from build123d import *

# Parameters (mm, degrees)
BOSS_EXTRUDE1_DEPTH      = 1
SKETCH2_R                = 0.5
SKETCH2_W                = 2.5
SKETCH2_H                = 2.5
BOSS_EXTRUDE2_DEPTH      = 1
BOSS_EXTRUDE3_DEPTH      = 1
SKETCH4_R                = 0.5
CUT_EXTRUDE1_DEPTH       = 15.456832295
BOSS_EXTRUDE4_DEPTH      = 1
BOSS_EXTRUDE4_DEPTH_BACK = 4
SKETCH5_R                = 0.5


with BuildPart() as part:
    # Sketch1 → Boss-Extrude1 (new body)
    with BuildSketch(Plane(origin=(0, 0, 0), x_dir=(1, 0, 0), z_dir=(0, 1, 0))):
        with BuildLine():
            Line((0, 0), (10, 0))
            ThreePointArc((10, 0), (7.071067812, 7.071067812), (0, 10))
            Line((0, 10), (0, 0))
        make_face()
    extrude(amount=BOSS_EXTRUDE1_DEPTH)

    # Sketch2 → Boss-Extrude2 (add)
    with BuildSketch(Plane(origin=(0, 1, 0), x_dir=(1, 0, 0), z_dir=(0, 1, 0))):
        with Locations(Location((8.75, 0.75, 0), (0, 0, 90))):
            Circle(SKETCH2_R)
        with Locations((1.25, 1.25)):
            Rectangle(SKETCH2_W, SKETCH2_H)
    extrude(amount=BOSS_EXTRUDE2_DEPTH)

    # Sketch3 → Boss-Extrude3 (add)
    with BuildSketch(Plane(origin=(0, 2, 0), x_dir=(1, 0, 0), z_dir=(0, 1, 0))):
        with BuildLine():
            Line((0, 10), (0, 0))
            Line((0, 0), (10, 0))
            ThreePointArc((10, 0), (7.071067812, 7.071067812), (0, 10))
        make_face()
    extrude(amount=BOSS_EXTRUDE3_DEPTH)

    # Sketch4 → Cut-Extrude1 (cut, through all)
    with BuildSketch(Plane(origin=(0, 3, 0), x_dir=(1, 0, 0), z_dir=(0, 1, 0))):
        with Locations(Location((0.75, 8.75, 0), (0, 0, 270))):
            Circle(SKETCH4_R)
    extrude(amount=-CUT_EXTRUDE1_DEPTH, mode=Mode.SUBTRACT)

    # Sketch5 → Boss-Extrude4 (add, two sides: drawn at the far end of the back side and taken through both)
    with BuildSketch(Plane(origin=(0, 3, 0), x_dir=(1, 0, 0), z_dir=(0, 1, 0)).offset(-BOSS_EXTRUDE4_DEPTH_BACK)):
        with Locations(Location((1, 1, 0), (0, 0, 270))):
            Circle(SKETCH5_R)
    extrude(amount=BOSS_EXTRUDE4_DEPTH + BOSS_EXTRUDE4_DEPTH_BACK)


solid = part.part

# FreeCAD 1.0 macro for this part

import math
import FreeCAD as App
import Part
import Sketcher


def add_polygon(sketch, points):
    """Adds a closed chain of lines whose ends are joined by coincident constraints."""
    first, n = sketch.GeometryCount, len(points)
    for a, b in zip(points, points[1:] + points[:1]):
        sketch.addGeometry(Part.LineSegment(App.Vector(*a, 0), App.Vector(*b, 0)), False)
    for i in range(n):
        sketch.addConstraint(Sketcher.Constraint("Coincident", first + i, 2, first + (i + 1) % n, 1))

doc = App.newDocument("Part")
body = doc.addObject("PartDesign::Body", "Body")

sketch1 = body.newObject("Sketcher::SketchObject", "Sketch")
sketch1.AttachmentSupport = (doc.getObject("XZ_Plane"), [""])
sketch1.MapMode = "FlatFace"
sketch1.addGeometry([
    Part.LineSegment(App.Vector(0, 0, 0), App.Vector(10, 0, 0)),
    Part.ArcOfCircle(Part.Circle(App.Vector(0, 0, 0), App.Vector(0, 0, 1), 10), math.radians(-90), math.radians(0)),
    Part.LineSegment(App.Vector(0, -10, 0), App.Vector(0, 0, 0)),
], False)
sketch1.addConstraint([
    Sketcher.Constraint("Coincident", 0, 2, 1, 2),
    Sketcher.Constraint("Coincident", 1, 1, 2, 1),
    Sketcher.Constraint("Coincident", 2, 2, 0, 1),
    Sketcher.Constraint("Horizontal", 0),
    Sketcher.Constraint("Vertical", 2),
    Sketcher.Constraint("Coincident", 1, 3, -1, 1),
    Sketcher.Constraint("Coincident", 2, 2, -1, 1),
    Sketcher.Constraint("Radius", 1, 10.0),
])
pad1 = body.newObject("PartDesign::Pad", "Pad")
pad1.Profile = sketch1
pad1.Length = 1
pad1.Reversed = True

sketch2 = body.newObject("Sketcher::SketchObject", "Sketch001")
sketch2.AttachmentSupport = (doc.getObject("XZ_Plane"), [""])
sketch2.MapMode = "FlatFace"
sketch2.AttachmentOffset = App.Placement(App.Vector(0, 0, -1), App.Rotation())
sketch2.addGeometry(Part.Circle(App.Vector(8.8, -0.8, 0), App.Vector(0, 0, 1), 0.5), False)
add_polygon(sketch2, [(0, -2.5), (0, 0), (2.5, 0), (2.5, -2.5)])
sketch2.addConstraint([
    Sketcher.Constraint("Vertical", 1),
    Sketcher.Constraint("Horizontal", 2),
    Sketcher.Constraint("Vertical", 3),
    Sketcher.Constraint("Horizontal", 4),
    Sketcher.Constraint("Coincident", 1, 2, -1, 1),
    Sketcher.Constraint("Equal", 4, 1),
    Sketcher.Constraint("Diameter", 0, 1.0),
    Sketcher.Constraint("DistanceX", 2, 1, 2, 2, 2.5),
    Sketcher.Constraint("DistanceX", -1, 1, 0, 3, 8.75),
    Sketcher.Constraint("DistanceY", 0, 3, -1, 1, 0.75),
])
pad2 = body.newObject("PartDesign::Pad", "Pad001")
pad2.Profile = sketch2
pad2.Length = 1
pad2.Reversed = True

sketch3 = body.newObject("Sketcher::SketchObject", "Sketch002")
sketch3.AttachmentSupport = (doc.getObject("XZ_Plane"), [""])
sketch3.MapMode = "FlatFace"
sketch3.AttachmentOffset = App.Placement(App.Vector(0, 0, -2), App.Rotation())
sketch3.addGeometry([
    Part.LineSegment(App.Vector(0, -10, 0), App.Vector(0, 0, 0)),
    Part.LineSegment(App.Vector(0, 0, 0), App.Vector(10, 0, 0)),
    Part.ArcOfCircle(Part.Circle(App.Vector(0, 0, 0), App.Vector(0, 0, 1), 10), math.radians(-90), math.radians(0)),
], False)
sketch3.addConstraint([
    Sketcher.Constraint("Coincident", 0, 2, 1, 1),
    Sketcher.Constraint("Coincident", 1, 2, 2, 2),
    Sketcher.Constraint("Coincident", 2, 1, 0, 1),
    Sketcher.Constraint("Vertical", 0),
    Sketcher.Constraint("Horizontal", 1),
    Sketcher.Constraint("Coincident", 2, 3, -1, 1),
    Sketcher.Constraint("Coincident", 0, 2, -1, 1),
    Sketcher.Constraint("Radius", 2, 10.0),
])
pad3 = body.newObject("PartDesign::Pad", "Pad002")
pad3.Profile = sketch3
pad3.Length = 1
pad3.Reversed = True

sketch4 = body.newObject("Sketcher::SketchObject", "Sketch003")
sketch4.AttachmentSupport = (doc.getObject("XZ_Plane"), [""])
sketch4.MapMode = "FlatFace"
sketch4.AttachmentOffset = App.Placement(App.Vector(0, 0, -3), App.Rotation())
sketch4.addGeometry(Part.Circle(App.Vector(0.8, -8.8, 0), App.Vector(0, 0, 1), 0.5), False)
sketch4.addConstraint([
    Sketcher.Constraint("Diameter", 0, 1.0),
    Sketcher.Constraint("DistanceX", -1, 1, 0, 3, 0.75),
    Sketcher.Constraint("DistanceY", 0, 3, -1, 1, 8.75),
])
pocket1 = body.newObject("PartDesign::Pocket", "Pocket")
pocket1.Profile = sketch4
pocket1.Type = "ThroughAll"
pocket1.Reversed = True

sketch5 = body.newObject("Sketcher::SketchObject", "Sketch004")
sketch5.AttachmentSupport = (doc.getObject("XZ_Plane"), [""])
sketch5.MapMode = "FlatFace"
sketch5.AttachmentOffset = App.Placement(App.Vector(0, 0, -3), App.Rotation())
sketch5.addGeometry(Part.Circle(App.Vector(1, -1, 0), App.Vector(0, 0, 1), 0.5), False)
sketch5.addConstraint([
    Sketcher.Constraint("Diameter", 0, 1.0),
    Sketcher.Constraint("DistanceX", -1, 1, 0, 3, 1.0),
    Sketcher.Constraint("DistanceY", 0, 3, -1, 1, 1.0),
])
pad4 = body.newObject("PartDesign::Pad", "Pad003")
pad4.Profile = sketch5
pad4.Type = "TwoLengths"
pad4.Length = 1
pad4.Length2 = 4
pad4.Reversed = True

doc.recompute()
